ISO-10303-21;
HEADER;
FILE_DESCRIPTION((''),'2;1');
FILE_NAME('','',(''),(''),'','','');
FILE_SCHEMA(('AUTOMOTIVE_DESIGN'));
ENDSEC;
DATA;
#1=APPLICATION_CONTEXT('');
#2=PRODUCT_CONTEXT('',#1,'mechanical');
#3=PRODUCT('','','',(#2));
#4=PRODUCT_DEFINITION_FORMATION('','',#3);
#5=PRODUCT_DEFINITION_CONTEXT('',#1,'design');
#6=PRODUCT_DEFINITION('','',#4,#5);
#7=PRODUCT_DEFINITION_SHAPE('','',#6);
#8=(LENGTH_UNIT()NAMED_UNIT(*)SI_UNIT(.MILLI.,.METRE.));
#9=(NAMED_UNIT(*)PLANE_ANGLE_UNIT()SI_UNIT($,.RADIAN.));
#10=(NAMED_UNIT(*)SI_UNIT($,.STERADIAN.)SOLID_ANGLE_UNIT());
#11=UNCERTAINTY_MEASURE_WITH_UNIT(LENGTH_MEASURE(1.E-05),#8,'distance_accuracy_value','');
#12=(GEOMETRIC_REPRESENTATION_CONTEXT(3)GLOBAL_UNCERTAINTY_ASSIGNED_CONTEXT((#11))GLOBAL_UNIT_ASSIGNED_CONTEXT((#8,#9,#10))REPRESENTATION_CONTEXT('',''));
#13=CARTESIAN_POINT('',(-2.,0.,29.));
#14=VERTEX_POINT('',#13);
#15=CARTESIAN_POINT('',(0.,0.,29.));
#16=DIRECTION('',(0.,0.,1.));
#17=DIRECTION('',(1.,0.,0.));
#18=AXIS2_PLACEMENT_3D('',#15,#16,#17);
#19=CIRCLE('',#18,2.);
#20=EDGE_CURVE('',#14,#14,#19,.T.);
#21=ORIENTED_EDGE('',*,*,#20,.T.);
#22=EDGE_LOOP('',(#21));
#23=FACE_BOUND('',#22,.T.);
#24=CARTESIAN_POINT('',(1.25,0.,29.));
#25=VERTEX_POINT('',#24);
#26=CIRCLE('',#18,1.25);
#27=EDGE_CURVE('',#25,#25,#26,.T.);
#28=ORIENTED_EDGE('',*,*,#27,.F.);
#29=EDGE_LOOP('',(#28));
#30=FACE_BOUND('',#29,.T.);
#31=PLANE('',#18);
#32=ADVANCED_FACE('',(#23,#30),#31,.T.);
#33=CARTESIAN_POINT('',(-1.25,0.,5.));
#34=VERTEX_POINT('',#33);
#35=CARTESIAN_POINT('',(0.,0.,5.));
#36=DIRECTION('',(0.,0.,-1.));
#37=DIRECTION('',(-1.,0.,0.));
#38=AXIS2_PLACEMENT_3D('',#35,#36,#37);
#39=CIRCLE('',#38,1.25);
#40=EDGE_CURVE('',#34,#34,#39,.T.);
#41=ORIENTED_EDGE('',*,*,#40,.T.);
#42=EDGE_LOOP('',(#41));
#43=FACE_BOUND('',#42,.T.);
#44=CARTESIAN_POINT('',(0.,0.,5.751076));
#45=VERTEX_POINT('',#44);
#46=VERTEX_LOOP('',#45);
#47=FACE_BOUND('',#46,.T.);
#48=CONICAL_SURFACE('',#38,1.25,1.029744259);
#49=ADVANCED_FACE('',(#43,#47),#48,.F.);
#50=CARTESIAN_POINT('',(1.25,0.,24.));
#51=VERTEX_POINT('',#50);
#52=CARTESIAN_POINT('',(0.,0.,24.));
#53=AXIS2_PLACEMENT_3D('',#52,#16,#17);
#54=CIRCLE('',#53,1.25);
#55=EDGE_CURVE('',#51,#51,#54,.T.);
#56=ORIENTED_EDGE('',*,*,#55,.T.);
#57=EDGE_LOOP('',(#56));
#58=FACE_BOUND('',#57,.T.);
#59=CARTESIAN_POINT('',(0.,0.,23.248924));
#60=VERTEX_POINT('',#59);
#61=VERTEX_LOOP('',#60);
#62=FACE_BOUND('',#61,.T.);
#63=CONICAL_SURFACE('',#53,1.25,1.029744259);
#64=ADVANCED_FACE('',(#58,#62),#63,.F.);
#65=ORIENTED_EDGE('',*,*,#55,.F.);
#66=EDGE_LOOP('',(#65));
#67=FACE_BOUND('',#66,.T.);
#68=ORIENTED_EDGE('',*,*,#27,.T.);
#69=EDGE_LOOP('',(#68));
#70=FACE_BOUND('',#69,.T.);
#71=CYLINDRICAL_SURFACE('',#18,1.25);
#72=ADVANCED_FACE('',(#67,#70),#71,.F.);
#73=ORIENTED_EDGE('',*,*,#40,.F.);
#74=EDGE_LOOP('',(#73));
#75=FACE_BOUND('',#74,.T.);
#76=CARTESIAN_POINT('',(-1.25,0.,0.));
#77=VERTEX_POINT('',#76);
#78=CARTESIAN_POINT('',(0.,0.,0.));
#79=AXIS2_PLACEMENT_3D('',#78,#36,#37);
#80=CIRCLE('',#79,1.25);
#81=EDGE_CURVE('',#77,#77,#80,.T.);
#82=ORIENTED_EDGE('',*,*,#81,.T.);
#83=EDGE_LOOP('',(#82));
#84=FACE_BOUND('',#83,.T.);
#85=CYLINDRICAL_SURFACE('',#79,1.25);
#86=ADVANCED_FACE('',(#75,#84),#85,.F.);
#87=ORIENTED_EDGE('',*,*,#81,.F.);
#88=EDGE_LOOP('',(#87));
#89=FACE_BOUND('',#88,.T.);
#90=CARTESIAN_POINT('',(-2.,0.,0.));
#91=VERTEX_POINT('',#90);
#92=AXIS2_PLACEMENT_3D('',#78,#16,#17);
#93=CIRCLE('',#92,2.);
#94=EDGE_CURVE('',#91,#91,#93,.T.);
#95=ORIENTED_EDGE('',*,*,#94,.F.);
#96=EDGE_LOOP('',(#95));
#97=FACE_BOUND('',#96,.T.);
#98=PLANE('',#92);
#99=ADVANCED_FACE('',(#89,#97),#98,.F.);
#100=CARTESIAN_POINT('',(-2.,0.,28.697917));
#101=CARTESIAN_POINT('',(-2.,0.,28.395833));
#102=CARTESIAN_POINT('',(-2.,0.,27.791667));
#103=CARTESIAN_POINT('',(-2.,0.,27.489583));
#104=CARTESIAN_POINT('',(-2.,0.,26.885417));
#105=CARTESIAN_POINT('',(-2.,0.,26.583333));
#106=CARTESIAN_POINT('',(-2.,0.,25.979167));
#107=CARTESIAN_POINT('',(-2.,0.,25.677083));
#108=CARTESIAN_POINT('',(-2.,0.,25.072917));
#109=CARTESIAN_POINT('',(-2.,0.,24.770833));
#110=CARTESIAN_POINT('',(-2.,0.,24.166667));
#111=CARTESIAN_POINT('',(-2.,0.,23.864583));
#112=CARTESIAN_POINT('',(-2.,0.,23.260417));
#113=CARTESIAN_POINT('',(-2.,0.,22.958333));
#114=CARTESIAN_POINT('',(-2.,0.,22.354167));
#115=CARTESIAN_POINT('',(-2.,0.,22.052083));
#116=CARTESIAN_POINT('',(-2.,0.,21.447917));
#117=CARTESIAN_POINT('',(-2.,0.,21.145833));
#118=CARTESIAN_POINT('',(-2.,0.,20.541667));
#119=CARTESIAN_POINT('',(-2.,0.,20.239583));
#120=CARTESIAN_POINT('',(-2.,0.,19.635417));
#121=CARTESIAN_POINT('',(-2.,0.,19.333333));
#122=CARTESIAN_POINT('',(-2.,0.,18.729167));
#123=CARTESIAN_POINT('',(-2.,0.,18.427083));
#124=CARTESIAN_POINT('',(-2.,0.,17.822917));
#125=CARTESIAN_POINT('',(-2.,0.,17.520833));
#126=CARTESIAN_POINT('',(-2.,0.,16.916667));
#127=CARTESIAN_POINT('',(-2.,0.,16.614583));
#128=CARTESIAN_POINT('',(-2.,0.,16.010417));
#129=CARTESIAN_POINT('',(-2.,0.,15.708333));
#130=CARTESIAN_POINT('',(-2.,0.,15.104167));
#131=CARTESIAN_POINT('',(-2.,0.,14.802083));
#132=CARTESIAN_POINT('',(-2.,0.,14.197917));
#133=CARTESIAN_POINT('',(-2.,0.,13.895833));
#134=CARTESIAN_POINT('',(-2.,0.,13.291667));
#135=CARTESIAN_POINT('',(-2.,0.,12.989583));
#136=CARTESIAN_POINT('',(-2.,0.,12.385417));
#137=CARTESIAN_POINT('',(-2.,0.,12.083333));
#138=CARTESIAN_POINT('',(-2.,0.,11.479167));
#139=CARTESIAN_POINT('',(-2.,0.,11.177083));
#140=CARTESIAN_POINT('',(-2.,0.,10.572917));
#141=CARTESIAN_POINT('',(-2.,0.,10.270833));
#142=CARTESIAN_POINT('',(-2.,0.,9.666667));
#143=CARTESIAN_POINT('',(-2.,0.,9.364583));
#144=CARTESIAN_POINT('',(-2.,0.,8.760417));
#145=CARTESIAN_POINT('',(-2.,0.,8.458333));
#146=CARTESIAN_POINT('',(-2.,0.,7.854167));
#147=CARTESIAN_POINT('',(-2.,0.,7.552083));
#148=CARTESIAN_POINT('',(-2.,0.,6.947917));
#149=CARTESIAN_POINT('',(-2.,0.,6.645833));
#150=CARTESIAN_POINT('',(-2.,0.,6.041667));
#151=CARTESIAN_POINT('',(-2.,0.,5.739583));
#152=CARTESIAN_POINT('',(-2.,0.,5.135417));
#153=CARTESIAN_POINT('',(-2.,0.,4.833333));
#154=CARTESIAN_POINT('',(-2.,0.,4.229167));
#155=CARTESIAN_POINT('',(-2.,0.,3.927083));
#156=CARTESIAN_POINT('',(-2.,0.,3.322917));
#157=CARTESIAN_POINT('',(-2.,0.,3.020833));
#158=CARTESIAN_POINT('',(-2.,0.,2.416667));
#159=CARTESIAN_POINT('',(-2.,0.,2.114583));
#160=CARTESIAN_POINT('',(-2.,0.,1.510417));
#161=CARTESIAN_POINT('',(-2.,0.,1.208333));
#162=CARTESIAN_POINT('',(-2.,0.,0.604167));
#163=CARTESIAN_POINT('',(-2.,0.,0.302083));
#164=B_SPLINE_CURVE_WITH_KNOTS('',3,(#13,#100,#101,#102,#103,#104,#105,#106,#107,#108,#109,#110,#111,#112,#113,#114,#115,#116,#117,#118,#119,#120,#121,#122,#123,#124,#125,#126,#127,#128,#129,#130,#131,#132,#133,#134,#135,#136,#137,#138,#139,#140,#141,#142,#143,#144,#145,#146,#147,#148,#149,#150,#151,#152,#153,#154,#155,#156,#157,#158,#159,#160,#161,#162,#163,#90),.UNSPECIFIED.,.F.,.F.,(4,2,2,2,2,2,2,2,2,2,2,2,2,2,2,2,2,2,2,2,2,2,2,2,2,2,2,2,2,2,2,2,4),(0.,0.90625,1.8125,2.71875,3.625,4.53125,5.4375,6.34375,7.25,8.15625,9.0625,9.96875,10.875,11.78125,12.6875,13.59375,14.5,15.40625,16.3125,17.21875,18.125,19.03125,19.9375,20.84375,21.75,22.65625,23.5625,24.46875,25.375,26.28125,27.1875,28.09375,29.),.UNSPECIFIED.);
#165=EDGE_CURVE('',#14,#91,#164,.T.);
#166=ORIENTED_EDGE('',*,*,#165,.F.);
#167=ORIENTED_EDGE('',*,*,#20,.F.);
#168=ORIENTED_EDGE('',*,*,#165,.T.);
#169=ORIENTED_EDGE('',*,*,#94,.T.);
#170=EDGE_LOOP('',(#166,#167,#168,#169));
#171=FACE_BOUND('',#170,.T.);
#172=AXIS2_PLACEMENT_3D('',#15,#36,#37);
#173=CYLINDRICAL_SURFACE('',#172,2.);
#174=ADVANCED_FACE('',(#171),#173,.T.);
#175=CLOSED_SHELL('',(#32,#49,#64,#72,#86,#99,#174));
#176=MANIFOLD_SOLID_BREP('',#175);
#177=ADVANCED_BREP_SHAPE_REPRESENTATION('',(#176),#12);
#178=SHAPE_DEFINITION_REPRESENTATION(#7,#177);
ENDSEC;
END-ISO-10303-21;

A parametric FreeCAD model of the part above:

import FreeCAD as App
import Part
import Sketcher

V = App.Vector
Q = App.Units.Quantity

doc = App.newDocument("Part")
params = doc.addObject("Spreadsheet::Sheet", "Params")
for row, (alias, value) in enumerate([
    ("sketch1_diameter", "4 mm"),
    ("pad1_length", "29 mm"),
    ("sketch2_height", "5 mm"),
    ("sketch2_width", "1.25 mm"),
    ("groove_angle", "360 deg"),
], start=1):
    params.set(f"A{row}", alias)
    params.set(f"B{row}", "=" + value)
    params.setAlias(f"B{row}", alias)

body = doc.addObject("PartDesign::Body", "Body")

# Sketch on XY plane
sketch1 = body.newObject("Sketcher::SketchObject", "Sketch")
sketch1.AttachmentSupport = (doc.getObject("XY_Plane"), [""])
sketch1.MapMode = "FlatFace"
sketch1.addGeometry(Part.Circle(V(0, 0, 0), V(0, 0, 1), 2), False)
sketch1.addConstraint([
    Sketcher.Constraint("Coincident", 0, 3, -1, 1),
    Sketcher.Constraint("Diameter", 0, 4.0),
])
sketch1.setExpression("Constraints[1]", "Params.sketch1_diameter")
pad1 = body.newObject("PartDesign::Pad", "Pad")
pad1.Profile = sketch1
pad1.setExpression("Length", "Params.pad1_length")

# Sketch on YZ plane
sketch2 = body.newObject("Sketcher::SketchObject", "Sketch001")
sketch2.AttachmentSupport = (doc.getObject("YZ_Plane"), [""])
sketch2.MapMode = "FlatFace"
sketch2.addGeometry([
    Part.LineSegment(V(0, 23.248924, 0), V(0, 29, 0)),
    Part.LineSegment(V(0, 29, 0), V(-1.25, 29, 0)),
    Part.LineSegment(V(-1.25, 29, 0), V(-1.25, 24, 0)),
    Part.LineSegment(V(-1.25, 24, 0), V(0, 23.248924, 0)),
], False)
sketch2.addConstraint([
    Sketcher.Constraint("Coincident", 0, 2, 1, 1),
    Sketcher.Constraint("Coincident", 1, 2, 2, 1),
    Sketcher.Constraint("Coincident", 2, 2, 3, 1),
    Sketcher.Constraint("Coincident", 3, 2, 0, 1),
    Sketcher.Constraint("Vertical", 0),
    Sketcher.Constraint("Horizontal", 1),
    Sketcher.Constraint("Vertical", 2),
    Sketcher.Constraint("PointOnObject", 0, 2, -2),
    Sketcher.Constraint("DistanceY", 2, 2, 2, 1, 5.0),
    Sketcher.Constraint("Angle", 3, Q("-31 deg")),
    Sketcher.Constraint("DistanceY", -1, 1, 0, 2, 29.0),
    Sketcher.Constraint("DistanceX", 1, 2, 1, 1, 1.25),
])
sketch2.setExpression("Constraints[8]", "Params.sketch2_height")
sketch2.setExpression("Constraints[11]", "Params.sketch2_width")
groove = body.newObject("PartDesign::Groove", "Groove")
groove.Profile = sketch2
groove.ReferenceAxis = (sketch2, ["V_Axis"])
groove.setExpression("Angle", "Params.groove_angle")
doc.recompute()

datumplane = body.newObject("PartDesign::Plane", "DatumPlane")
datumplane.AttachmentSupport = (doc.getObject("XY_Plane"), [""])
datumplane.MapMode = "FlatFace"
datumplane.AttachmentOffset = App.Placement(V(0, 0, 14.5), App.Rotation())
mirrored = body.newObject("PartDesign::Mirrored", "Mirrored")
mirrored.Originals = [groove]
mirrored.MirrorPlane = (datumplane, [""])
body.Tip = mirrored

doc.recompute()
